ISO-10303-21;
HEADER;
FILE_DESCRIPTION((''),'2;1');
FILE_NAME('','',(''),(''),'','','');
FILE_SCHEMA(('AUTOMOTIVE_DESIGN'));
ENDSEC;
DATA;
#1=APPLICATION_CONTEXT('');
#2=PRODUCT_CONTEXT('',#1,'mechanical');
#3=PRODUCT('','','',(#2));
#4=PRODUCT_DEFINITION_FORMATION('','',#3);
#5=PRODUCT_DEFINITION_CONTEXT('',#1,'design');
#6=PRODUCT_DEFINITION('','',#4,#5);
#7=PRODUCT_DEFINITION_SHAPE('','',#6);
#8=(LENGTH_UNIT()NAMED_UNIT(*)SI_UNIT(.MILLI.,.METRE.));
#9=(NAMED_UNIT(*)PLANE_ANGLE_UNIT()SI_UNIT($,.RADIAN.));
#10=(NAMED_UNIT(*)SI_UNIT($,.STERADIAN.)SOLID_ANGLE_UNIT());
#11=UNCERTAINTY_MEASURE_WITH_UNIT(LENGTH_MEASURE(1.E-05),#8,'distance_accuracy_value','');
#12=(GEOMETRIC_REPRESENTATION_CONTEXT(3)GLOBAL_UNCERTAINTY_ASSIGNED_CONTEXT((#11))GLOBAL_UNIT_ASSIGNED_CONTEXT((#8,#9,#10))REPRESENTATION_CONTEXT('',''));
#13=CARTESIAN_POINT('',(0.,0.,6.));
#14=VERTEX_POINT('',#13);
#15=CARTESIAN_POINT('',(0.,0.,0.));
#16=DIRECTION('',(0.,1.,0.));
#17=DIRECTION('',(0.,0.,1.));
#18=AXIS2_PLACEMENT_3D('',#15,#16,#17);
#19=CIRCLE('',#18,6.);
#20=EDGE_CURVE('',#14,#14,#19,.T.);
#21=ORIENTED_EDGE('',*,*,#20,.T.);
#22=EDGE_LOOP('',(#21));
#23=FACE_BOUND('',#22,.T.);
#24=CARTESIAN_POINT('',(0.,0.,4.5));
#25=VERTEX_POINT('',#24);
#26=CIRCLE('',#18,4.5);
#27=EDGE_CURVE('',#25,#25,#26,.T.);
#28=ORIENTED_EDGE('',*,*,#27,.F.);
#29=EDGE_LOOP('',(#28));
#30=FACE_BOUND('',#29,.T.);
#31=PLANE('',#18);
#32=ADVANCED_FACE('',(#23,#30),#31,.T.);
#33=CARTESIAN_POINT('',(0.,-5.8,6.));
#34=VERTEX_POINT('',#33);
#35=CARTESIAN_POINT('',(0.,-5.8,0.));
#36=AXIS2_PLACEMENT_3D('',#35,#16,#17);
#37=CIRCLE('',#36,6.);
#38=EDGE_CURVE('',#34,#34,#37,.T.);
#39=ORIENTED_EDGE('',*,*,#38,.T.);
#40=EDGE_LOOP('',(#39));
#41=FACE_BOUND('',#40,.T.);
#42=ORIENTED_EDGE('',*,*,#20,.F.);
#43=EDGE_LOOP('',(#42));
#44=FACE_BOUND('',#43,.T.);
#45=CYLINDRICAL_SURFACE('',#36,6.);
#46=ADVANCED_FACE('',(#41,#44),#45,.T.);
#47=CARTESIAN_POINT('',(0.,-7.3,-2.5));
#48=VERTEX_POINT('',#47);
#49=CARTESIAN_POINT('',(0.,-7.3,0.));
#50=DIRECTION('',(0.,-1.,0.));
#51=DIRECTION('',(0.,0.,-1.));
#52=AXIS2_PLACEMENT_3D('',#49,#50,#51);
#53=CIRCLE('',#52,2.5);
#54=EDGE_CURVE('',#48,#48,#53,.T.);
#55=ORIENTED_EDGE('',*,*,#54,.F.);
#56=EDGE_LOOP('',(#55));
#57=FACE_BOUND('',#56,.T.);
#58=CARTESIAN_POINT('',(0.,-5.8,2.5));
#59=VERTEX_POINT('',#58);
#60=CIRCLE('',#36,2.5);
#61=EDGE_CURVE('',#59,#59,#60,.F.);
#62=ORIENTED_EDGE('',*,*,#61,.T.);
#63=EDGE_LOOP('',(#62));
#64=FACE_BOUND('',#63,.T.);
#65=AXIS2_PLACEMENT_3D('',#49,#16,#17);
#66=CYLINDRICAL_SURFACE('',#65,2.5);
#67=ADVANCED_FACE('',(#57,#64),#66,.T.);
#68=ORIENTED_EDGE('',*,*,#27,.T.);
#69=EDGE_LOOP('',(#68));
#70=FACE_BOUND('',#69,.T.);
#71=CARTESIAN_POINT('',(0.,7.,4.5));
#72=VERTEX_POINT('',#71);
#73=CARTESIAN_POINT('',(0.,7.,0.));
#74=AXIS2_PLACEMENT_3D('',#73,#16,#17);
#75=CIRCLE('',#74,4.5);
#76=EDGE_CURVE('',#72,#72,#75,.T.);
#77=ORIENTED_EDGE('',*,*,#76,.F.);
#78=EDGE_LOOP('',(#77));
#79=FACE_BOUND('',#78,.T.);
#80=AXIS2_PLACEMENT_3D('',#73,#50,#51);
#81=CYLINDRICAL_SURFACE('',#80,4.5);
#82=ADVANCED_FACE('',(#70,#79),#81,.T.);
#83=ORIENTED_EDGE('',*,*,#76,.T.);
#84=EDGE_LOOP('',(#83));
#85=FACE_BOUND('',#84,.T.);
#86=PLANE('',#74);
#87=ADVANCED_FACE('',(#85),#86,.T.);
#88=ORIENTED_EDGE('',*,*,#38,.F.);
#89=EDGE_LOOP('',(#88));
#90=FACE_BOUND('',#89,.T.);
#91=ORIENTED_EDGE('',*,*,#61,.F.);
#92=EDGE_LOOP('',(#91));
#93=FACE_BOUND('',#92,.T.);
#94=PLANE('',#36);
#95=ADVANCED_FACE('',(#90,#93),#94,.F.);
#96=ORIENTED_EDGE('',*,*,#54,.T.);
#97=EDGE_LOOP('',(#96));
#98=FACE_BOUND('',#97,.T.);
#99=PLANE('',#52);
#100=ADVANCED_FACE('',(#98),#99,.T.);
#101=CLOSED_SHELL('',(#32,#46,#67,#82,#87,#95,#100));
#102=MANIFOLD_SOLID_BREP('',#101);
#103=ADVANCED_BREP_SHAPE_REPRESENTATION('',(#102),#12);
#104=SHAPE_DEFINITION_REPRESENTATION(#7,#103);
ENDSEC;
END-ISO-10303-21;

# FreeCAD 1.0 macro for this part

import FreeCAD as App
import Part
import Sketcher

doc = App.newDocument("Part")
params = doc.addObject("Spreadsheet::Sheet", "Params")
for row, (alias, value) in enumerate([
    ("sketch1_diameter", "12 mm"),
    ("pad1_length", "5.8 mm"),
    ("sketch2_diameter", "9 mm"),
    ("pad2_length", "7 mm"),
    ("sketch3_diameter", "5 mm"),
    ("pad3_length", "1.5 mm"),
], start=1):
    params.set(f"A{row}", alias)
    params.set(f"B{row}", "=" + value)
    params.setAlias(f"B{row}", alias)

body = doc.addObject("PartDesign::Body", "Body")

# Sketch on XZ plane
sketch1 = doc.addObject("Sketcher::SketchObject", "Sketch")
body.addObject(sketch1)
sketch1.AttachmentSupport = (doc.XZ_Plane, [""])
sketch1.MapMode = "FlatFace"
sketch1.addGeometry(Part.Circle(App.Vector(0, 0, 0), App.Vector(0, 0, 1), 6), False)
sketch1.addConstraint(Sketcher.Constraint("Coincident", 0, 3, -1, 1))
sketch1.addConstraint(Sketcher.Constraint("Diameter", 0, 12.0))
sketch1.setExpression("Constraints[1]", "Params.sketch1_diameter")
pad1 = doc.addObject("PartDesign::Pad", "Pad")
body.addObject(pad1)
pad1.Profile = sketch1
pad1.setExpression("Length", "Params.pad1_length")

# Sketch on XZ plane
sketch2 = doc.addObject("Sketcher::SketchObject", "Sketch001")
body.addObject(sketch2)
sketch2.AttachmentSupport = (doc.XZ_Plane, [""])
sketch2.MapMode = "FlatFace"
sketch2.addGeometry(Part.Circle(App.Vector(0, 0, 0), App.Vector(0, 0, 1), 4.5), False)
sketch2.addConstraint(Sketcher.Constraint("Coincident", 0, 3, -1, 1))
sketch2.addConstraint(Sketcher.Constraint("Diameter", 0, 9.0))
sketch2.setExpression("Constraints[1]", "Params.sketch2_diameter")
pad2 = doc.addObject("PartDesign::Pad", "Pad001")
body.addObject(pad2)
pad2.Profile = sketch2
pad2.setExpression("Length", "Params.pad2_length")
pad2.Reversed = True

# Sketch on XZ plane
sketch3 = doc.addObject("Sketcher::SketchObject", "Sketch002")
body.addObject(sketch3)
sketch3.AttachmentSupport = (doc.XZ_Plane, [""])
sketch3.MapMode = "FlatFace"
sketch3.AttachmentOffset = App.Placement(App.Vector(0, 0, 5.8), App.Rotation())
sketch3.addGeometry(Part.Circle(App.Vector(0, 0, 0), App.Vector(0, 0, 1), 2.5), False)
sketch3.addConstraint(Sketcher.Constraint("Coincident", 0, 3, -1, 1))
sketch3.addConstraint(Sketcher.Constraint("Diameter", 0, 5.0))
sketch3.setExpression("Constraints[1]", "Params.sketch3_diameter")
pad3 = doc.addObject("PartDesign::Pad", "Pad002")
body.addObject(pad3)
pad3.Profile = sketch3
pad3.setExpression("Length", "Params.pad3_length")

doc.recompute()
